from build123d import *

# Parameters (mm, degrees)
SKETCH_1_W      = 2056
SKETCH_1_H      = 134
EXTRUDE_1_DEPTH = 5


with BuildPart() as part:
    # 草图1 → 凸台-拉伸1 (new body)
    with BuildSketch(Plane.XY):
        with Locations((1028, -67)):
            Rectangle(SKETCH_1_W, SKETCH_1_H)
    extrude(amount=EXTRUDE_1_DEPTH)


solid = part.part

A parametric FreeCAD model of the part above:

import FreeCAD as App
import Part
import Sketcher

V = App.Vector

doc = App.newDocument("Part")
body = doc.addObject("PartDesign::Body", "Body")

# Sketch on XY plane
sketch1 = doc.addObject("Sketcher::SketchObject", "Sketch")
body.addObject(sketch1)
sketch1.AttachmentSupport = (doc.XY_Plane, [""])
sketch1.MapMode = "FlatFace"
sketch1.addGeometry([
    Part.LineSegment(V(0, 0, 0), V(0, -134, 0)),
    Part.LineSegment(V(0, -134, 0), V(2056, -134, 0)),
    Part.LineSegment(V(2056, -134, 0), V(2056, 0, 0)),
    Part.LineSegment(V(2056, 0, 0), V(0, 0, 0)),
], False)
sketch1.addConstraint([
    Sketcher.Constraint("Coincident", 0, 2, 1, 1),
    Sketcher.Constraint("Coincident", 1, 2, 2, 1),
    Sketcher.Constraint("Coincident", 2, 2, 3, 1),
    Sketcher.Constraint("Coincident", 3, 2, 0, 1),
    Sketcher.Constraint("Vertical", 0),
    Sketcher.Constraint("Horizontal", 1),
    Sketcher.Constraint("Vertical", 2),
    Sketcher.Constraint("Horizontal", 3),
    Sketcher.Constraint("Coincident", 3, 2, -1, 1),
    Sketcher.Constraint("DistanceX", 1, 1, 1, 2, 2056.0),
    Sketcher.Constraint("DistanceY", 0, 2, 0, 1, 134.0),
])
pad1 = doc.addObject("PartDesign::Pad", "Pad")
body.addObject(pad1)
pad1.Profile = sketch1
pad1.Length = 5

doc.recompute()
